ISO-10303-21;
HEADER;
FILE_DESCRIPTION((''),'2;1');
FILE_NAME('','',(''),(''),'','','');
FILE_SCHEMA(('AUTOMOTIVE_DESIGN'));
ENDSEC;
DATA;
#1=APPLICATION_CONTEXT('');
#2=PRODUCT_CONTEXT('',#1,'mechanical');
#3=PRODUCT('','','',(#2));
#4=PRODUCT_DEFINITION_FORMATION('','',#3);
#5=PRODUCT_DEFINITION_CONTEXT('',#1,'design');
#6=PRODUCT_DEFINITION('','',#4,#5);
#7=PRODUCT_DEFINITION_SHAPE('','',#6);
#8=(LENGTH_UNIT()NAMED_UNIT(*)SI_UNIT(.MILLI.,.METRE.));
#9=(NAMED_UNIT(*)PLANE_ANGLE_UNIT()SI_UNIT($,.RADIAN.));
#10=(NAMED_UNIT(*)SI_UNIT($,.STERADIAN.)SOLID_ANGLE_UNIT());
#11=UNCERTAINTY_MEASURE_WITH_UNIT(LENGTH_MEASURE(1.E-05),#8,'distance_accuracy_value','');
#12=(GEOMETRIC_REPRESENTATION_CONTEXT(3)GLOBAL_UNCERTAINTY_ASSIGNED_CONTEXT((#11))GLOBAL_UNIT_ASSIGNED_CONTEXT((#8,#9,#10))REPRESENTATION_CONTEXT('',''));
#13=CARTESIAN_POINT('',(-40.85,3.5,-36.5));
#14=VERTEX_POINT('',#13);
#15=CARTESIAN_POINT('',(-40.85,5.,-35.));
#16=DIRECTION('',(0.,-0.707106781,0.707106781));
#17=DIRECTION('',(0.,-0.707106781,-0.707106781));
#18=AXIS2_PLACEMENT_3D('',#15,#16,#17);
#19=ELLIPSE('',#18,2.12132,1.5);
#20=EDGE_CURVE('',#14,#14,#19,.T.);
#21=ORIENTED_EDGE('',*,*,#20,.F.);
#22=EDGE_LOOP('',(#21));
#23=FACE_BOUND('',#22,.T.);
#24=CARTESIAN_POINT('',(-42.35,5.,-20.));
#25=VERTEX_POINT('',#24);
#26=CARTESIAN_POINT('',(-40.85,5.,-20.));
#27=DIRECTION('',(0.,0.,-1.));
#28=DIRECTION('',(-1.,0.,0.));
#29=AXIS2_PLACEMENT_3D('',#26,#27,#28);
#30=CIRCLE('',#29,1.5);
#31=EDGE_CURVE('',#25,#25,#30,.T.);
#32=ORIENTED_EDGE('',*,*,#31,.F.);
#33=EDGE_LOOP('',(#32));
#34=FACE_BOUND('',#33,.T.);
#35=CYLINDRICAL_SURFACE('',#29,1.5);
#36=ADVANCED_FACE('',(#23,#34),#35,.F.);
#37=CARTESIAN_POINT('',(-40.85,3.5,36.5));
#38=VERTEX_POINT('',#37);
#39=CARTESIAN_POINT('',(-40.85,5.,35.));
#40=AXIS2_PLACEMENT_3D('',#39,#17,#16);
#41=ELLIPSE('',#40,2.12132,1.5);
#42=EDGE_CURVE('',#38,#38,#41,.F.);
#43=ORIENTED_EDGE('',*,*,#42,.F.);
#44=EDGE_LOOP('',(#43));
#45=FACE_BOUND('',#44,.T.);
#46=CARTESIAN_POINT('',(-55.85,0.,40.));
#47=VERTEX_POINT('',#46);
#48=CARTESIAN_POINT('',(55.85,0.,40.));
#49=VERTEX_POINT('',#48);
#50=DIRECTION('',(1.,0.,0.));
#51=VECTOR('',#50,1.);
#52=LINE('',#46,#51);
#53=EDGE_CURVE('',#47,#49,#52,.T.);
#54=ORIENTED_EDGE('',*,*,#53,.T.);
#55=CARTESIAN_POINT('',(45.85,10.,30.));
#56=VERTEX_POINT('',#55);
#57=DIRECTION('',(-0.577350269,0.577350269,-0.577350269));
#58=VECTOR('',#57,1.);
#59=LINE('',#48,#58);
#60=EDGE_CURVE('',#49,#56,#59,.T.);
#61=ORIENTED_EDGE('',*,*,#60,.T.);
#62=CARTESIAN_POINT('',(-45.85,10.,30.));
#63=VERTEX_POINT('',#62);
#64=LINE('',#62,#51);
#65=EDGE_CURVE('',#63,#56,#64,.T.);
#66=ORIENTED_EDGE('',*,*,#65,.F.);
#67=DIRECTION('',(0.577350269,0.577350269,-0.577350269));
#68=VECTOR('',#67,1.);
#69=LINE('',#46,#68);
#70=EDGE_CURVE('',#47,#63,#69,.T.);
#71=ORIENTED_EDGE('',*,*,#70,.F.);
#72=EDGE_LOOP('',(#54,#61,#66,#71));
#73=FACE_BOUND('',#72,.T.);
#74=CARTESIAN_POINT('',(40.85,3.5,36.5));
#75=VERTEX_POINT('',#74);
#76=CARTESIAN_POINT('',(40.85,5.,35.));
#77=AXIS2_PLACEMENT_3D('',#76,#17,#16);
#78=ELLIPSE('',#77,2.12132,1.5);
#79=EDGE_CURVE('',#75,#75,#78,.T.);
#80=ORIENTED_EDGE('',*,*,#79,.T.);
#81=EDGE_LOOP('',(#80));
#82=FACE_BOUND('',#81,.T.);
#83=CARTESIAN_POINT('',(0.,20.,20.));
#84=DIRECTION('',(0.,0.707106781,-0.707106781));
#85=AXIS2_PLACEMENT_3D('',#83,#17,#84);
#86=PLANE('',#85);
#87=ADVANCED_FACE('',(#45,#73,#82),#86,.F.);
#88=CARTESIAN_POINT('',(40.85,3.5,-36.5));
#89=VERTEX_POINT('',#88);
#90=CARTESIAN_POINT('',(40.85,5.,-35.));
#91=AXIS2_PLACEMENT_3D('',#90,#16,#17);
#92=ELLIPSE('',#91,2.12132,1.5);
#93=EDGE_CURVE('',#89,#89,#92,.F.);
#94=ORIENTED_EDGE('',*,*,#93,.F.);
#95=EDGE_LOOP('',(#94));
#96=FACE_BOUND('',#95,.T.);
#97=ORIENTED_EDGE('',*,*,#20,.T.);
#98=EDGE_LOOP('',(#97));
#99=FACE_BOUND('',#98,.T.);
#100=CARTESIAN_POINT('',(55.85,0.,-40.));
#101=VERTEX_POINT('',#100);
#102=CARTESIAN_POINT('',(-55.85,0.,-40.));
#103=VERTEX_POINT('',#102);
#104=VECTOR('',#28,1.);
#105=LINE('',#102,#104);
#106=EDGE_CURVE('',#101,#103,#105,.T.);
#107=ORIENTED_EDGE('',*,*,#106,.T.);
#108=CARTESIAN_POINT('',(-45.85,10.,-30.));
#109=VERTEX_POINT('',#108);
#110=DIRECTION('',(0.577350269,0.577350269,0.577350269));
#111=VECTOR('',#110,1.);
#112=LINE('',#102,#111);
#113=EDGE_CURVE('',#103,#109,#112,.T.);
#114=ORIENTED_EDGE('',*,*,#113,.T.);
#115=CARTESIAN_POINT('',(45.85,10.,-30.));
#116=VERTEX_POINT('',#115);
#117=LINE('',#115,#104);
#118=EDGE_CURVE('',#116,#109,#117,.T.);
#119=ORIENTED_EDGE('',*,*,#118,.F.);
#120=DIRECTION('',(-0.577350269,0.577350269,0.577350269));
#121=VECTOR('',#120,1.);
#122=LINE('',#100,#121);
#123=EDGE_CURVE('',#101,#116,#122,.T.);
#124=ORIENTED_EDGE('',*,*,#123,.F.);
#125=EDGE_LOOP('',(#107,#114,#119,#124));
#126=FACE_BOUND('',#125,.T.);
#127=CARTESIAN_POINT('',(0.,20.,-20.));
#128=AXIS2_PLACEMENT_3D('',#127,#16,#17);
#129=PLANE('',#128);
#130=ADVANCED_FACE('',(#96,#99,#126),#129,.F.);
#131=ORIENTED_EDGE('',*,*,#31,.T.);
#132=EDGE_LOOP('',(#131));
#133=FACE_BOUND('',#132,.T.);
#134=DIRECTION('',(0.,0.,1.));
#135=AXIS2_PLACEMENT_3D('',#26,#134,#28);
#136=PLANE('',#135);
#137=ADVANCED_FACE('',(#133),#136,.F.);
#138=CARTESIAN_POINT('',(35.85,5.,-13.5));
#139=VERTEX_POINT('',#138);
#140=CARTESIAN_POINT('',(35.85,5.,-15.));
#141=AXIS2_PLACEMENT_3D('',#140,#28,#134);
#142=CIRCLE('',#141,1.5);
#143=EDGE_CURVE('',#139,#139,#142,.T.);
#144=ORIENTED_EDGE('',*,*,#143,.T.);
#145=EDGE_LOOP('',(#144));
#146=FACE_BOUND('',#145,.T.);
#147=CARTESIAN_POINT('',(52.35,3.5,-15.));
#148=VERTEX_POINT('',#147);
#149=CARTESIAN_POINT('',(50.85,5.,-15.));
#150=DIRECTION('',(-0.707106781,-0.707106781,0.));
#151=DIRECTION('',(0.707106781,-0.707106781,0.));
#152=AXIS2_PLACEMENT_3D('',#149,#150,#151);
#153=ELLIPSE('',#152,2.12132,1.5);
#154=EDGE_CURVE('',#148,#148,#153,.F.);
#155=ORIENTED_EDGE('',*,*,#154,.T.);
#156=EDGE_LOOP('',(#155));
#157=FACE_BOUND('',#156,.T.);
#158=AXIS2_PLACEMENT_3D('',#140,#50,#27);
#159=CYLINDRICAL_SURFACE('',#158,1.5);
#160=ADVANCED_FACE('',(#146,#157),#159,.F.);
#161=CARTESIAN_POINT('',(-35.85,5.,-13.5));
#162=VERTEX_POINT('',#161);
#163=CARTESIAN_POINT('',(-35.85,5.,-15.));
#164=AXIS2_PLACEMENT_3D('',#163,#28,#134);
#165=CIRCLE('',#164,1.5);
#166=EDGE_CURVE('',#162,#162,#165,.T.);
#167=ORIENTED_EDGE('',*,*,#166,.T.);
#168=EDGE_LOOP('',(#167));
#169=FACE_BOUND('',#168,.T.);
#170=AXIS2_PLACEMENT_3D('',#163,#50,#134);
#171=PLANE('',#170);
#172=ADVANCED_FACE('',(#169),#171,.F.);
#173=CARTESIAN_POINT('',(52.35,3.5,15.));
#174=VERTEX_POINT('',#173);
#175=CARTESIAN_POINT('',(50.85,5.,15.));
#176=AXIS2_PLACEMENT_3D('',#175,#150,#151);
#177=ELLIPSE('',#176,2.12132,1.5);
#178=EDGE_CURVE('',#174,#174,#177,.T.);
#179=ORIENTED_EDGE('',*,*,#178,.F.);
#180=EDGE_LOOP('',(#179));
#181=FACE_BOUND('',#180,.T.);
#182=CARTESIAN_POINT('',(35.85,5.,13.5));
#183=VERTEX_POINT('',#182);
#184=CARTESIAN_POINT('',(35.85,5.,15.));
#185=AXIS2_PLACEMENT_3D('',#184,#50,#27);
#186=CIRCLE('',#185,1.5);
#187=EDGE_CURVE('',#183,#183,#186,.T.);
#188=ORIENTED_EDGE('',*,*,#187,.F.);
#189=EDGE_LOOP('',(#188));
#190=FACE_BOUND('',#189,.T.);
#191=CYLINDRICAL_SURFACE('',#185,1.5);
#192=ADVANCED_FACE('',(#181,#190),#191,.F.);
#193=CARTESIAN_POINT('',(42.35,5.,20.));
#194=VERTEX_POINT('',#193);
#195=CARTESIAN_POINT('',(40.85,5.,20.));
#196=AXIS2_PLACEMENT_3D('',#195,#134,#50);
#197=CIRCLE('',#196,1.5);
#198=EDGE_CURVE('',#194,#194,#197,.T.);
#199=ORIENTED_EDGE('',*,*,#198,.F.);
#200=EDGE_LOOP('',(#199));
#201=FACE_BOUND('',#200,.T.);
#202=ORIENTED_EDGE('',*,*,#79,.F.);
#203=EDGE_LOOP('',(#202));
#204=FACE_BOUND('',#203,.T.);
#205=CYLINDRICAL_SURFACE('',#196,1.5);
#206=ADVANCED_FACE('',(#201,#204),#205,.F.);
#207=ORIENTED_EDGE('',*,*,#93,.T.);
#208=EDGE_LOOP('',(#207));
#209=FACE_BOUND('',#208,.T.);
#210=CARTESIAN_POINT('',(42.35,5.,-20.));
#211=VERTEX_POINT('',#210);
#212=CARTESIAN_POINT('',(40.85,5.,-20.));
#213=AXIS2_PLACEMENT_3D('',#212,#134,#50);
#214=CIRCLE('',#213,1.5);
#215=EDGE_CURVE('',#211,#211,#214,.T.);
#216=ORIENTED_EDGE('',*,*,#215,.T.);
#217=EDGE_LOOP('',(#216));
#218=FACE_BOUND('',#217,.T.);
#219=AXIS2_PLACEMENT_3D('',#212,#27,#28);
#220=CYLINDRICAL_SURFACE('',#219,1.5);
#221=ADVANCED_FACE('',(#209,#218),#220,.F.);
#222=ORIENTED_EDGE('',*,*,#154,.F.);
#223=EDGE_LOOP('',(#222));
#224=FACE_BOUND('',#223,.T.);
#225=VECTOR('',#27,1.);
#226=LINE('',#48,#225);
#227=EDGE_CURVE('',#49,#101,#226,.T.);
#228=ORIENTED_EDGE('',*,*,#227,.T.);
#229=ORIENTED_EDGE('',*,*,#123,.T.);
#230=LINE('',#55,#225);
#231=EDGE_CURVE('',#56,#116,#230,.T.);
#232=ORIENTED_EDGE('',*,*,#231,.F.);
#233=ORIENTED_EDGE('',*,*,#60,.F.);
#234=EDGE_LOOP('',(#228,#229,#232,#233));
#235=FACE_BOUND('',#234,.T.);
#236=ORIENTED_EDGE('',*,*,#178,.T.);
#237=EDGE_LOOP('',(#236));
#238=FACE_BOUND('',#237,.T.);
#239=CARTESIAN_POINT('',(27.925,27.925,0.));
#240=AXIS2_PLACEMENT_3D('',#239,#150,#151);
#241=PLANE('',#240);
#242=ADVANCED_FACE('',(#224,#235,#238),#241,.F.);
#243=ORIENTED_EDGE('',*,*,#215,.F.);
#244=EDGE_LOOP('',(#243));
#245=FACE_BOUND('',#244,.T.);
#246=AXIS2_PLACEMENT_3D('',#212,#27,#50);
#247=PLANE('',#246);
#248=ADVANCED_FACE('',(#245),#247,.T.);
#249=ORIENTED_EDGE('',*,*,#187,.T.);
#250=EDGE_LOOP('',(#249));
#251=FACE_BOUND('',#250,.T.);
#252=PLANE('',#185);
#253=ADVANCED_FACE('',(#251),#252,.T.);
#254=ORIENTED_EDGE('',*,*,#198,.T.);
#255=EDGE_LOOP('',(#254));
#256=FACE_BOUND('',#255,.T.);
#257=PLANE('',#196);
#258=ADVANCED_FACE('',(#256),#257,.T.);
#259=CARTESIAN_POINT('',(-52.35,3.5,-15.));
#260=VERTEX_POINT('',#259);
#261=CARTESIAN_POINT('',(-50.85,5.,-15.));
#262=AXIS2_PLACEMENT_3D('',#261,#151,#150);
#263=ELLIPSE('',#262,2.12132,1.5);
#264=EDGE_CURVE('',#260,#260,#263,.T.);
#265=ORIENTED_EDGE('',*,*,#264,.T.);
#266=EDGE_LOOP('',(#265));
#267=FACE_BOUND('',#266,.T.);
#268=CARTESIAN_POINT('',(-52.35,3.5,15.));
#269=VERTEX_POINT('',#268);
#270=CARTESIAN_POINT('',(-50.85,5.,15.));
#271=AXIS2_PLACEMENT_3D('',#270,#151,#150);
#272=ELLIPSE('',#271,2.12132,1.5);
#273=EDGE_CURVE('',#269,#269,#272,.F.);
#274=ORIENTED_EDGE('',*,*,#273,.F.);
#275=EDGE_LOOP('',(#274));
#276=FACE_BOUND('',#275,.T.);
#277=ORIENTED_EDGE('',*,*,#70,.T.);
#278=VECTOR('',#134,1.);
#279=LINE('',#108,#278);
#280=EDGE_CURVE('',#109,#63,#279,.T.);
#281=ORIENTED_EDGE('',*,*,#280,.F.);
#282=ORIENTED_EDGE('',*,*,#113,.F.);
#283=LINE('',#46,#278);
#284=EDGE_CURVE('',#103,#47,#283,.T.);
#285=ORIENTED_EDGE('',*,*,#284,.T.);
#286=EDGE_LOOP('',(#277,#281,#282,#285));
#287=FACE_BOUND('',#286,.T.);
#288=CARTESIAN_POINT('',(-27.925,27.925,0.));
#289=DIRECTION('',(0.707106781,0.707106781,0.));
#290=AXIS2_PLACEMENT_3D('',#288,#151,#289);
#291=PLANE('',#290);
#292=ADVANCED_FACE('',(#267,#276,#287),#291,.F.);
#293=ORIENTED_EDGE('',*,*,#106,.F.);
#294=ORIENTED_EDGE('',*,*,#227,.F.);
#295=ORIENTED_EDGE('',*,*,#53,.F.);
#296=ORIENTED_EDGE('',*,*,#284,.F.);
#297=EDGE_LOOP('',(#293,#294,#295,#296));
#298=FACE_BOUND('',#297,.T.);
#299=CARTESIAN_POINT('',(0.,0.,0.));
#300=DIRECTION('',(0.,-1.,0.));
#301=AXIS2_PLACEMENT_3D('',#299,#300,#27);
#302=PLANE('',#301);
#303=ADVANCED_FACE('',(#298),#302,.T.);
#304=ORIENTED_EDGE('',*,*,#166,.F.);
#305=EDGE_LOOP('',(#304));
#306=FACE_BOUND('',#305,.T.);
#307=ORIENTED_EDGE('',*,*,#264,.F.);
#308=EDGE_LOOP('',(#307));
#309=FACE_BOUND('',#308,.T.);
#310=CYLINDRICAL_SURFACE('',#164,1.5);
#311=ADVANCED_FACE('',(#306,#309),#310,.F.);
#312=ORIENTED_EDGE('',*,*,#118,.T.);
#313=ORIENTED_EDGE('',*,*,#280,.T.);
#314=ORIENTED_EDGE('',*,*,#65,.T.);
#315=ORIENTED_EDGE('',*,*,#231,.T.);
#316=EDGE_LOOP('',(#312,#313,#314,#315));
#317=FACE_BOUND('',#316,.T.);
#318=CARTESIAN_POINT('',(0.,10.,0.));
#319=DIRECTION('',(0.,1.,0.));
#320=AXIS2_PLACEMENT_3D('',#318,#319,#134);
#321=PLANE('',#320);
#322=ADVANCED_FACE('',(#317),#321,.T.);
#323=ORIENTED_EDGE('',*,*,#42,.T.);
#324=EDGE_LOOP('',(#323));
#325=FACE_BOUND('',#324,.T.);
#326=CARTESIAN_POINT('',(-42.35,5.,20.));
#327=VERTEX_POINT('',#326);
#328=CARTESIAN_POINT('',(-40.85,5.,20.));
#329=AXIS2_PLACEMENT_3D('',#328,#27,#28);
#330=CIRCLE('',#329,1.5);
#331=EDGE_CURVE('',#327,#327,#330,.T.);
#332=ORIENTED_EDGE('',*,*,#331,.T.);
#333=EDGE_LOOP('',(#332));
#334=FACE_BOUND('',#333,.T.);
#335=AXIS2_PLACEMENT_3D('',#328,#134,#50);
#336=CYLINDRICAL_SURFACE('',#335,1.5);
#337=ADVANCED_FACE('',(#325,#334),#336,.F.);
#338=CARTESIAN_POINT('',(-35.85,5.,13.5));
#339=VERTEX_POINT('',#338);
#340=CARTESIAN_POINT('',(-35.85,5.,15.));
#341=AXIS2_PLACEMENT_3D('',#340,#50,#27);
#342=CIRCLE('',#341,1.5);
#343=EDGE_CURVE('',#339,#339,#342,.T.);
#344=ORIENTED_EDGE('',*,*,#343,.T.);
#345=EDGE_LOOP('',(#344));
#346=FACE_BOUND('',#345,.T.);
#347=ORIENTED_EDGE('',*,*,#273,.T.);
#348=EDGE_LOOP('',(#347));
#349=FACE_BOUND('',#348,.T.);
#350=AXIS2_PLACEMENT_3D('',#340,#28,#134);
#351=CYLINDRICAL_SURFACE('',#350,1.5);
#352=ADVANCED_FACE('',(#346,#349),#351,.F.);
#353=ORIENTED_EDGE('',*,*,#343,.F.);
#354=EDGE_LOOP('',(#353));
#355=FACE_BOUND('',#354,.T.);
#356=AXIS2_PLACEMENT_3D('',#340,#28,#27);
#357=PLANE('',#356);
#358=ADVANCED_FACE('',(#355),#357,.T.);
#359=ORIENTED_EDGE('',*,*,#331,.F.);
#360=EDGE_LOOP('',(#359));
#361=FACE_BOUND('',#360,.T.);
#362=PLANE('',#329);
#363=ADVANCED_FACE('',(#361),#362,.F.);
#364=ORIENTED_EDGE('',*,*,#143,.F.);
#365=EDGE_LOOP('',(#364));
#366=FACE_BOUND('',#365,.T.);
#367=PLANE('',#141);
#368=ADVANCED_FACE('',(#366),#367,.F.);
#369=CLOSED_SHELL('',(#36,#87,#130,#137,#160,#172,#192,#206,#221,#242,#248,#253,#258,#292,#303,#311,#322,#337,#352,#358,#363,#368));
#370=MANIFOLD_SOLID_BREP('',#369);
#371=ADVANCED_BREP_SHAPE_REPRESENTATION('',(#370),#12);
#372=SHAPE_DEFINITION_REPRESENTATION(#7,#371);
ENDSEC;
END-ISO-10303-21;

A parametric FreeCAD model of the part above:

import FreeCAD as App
import Part
import Sketcher
from FreeCAD import Vector
Q = App.Units.Quantity

doc = App.newDocument("Part")
params = doc.addObject("Spreadsheet::Sheet", "Params")
for row, (alias, value) in enumerate([
    ("sketch1_height", "80 mm"),
    ("sketch1_width", "111.7 mm"),
    ("sketch2_height", "60 mm"),
    ("sketch2_width", "91.7 mm"),
    ("sketch3_diameter", "3 mm"),
    ("pocket1_length", "20 mm"),
    ("sketch4_diameter", "3 mm"),
    ("pocket2_length", "20 mm"),
], start=1):
    params.set(f"A{row}", alias)
    params.set(f"B{row}", "=" + value)
    params.setAlias(f"B{row}", alias)

body = doc.addObject("PartDesign::Body", "Body")

# Sketch on XZ plane
sketch1 = body.newObject("Sketcher::SketchObject", "Sketch")
sketch1.AttachmentSupport = (doc.getObject("XZ_Plane"), [""])
sketch1.MapMode = "FlatFace"
sketch1.addGeometry(Part.LineSegment(Vector(-56, 40, 0), Vector(56, 40, 0)), False)
sketch1.addGeometry(Part.LineSegment(Vector(56, 40, 0), Vector(56, -40, 0)), False)
sketch1.addGeometry(Part.LineSegment(Vector(56, -40, 0), Vector(-56, -40, 0)), False)
sketch1.addGeometry(Part.LineSegment(Vector(-56, -40, 0), Vector(-56, 40, 0)), False)
sketch1.addConstraint(Sketcher.Constraint("Coincident", 0, 2, 1, 1))
sketch1.addConstraint(Sketcher.Constraint("Coincident", 1, 2, 2, 1))
sketch1.addConstraint(Sketcher.Constraint("Coincident", 2, 2, 3, 1))
sketch1.addConstraint(Sketcher.Constraint("Coincident", 3, 2, 0, 1))
sketch1.addConstraint(Sketcher.Constraint("Horizontal", 0))
sketch1.addConstraint(Sketcher.Constraint("Vertical", 1))
sketch1.addConstraint(Sketcher.Constraint("Horizontal", 2))
sketch1.addConstraint(Sketcher.Constraint("Vertical", 3))
sketch1.addConstraint(Sketcher.Constraint("Symmetric", 0, 2, 2, 2, -1, 1))
sketch1.addConstraint(Sketcher.Constraint("DistanceY", 1, 2, 1, 1, Q("80 mm")))
sketch1.addConstraint(Sketcher.Constraint("DistanceX", 0, 1, 0, 2, Q("111.7 mm")))
sketch1.setExpression("Constraints[9]", "Params.sketch1_height")
sketch1.setExpression("Constraints[10]", "Params.sketch1_width")

# Sketch on XZ plane
sketch2 = body.newObject("Sketcher::SketchObject", "Sketch001")
sketch2.AttachmentSupport = (doc.getObject("XZ_Plane"), [""])
sketch2.MapMode = "FlatFace"
sketch2.AttachmentOffset = App.Placement(Vector(0, 0, -10), App.Rotation())
sketch2.addGeometry(Part.LineSegment(Vector(46, -30, 0), Vector(-46, -30, 0)), False)
sketch2.addGeometry(Part.LineSegment(Vector(-46, -30, 0), Vector(-46, 30, 0)), False)
sketch2.addGeometry(Part.LineSegment(Vector(-46, 30, 0), Vector(46, 30, 0)), False)
sketch2.addGeometry(Part.LineSegment(Vector(46, 30, 0), Vector(46, -30, 0)), False)
sketch2.addConstraint(Sketcher.Constraint("Coincident", 0, 2, 1, 1))
sketch2.addConstraint(Sketcher.Constraint("Coincident", 1, 2, 2, 1))
sketch2.addConstraint(Sketcher.Constraint("Coincident", 2, 2, 3, 1))
sketch2.addConstraint(Sketcher.Constraint("Coincident", 3, 2, 0, 1))
sketch2.addConstraint(Sketcher.Constraint("Horizontal", 0))
sketch2.addConstraint(Sketcher.Constraint("Vertical", 1))
sketch2.addConstraint(Sketcher.Constraint("Horizontal", 2))
sketch2.addConstraint(Sketcher.Constraint("Vertical", 3))
sketch2.addConstraint(Sketcher.Constraint("Symmetric", 0, 2, 2, 2, -1, 1))
sketch2.addConstraint(Sketcher.Constraint("DistanceY", 1, 1, 1, 2, Q("60 mm")))
sketch2.addConstraint(Sketcher.Constraint("DistanceX", 0, 2, 0, 1, Q("91.7 mm")))
sketch2.setExpression("Constraints[9]", "Params.sketch2_height")
sketch2.setExpression("Constraints[10]", "Params.sketch2_width")

additiveloft = body.newObject("PartDesign::AdditiveLoft", "AdditiveLoft")
additiveloft.Profile = sketch1
additiveloft.Sections = [sketch2]

# Sketch on XY plane
sketch3 = body.newObject("Sketcher::SketchObject", "Sketch002")
sketch3.AttachmentSupport = (doc.getObject("XY_Plane"), [""])
sketch3.MapMode = "FlatFace"
sketch3.AttachmentOffset = App.Placement(Vector(0, 0, 40), App.Rotation())
sketch3.addGeometry(Part.Circle(Vector(40.9, 5, 0), Vector(0, 0, 1), 1.5), False)
sketch3.addGeometry(Part.Circle(Vector(-40.9, 5, 0), Vector(0, 0, 1), 1.5), False)
sketch3.addConstraint(Sketcher.Constraint("Equal", 0, 1))
sketch3.addConstraint(Sketcher.Constraint("Symmetric", 0, 3, 1, 3, -2))
sketch3.addConstraint(Sketcher.Constraint("Diameter", 0, Q("3 mm")))
sketch3.addConstraint(Sketcher.Constraint("DistanceY", -1, 1, 0, 3, Q("5 mm")))
sketch3.addConstraint(Sketcher.Constraint("DistanceX", 1, 3, 0, 3, Q("81.7 mm")))
sketch3.setExpression("Constraints[2]", "Params.sketch3_diameter")
pocket1 = body.newObject("PartDesign::Pocket", "Pocket")
pocket1.Profile = sketch3
pocket1.setExpression("Length", "Params.pocket1_length")
doc.recompute()

mirrored = body.newObject("PartDesign::Mirrored", "Mirrored")
mirrored.Originals = [pocket1]
mirrored.MirrorPlane = (doc.getObject("XY_Plane"), [""])
body.Tip = mirrored

# Sketch on YZ plane
sketch4 = body.newObject("Sketcher::SketchObject", "Sketch003")
sketch4.AttachmentSupport = (doc.getObject("YZ_Plane"), [""])
sketch4.MapMode = "FlatFace"
sketch4.AttachmentOffset = App.Placement(Vector(0, 0, 55.85), App.Rotation())
sketch4.addGeometry(Part.Circle(Vector(5, 15, 0), Vector(0, 0, 1), 1.5), False)
sketch4.addGeometry(Part.Circle(Vector(5, -15, 0), Vector(0, 0, 1), 1.5), False)
sketch4.addConstraint(Sketcher.Constraint("Equal", 0, 1))
sketch4.addConstraint(Sketcher.Constraint("Symmetric", 0, 3, 1, 3, -1))
sketch4.addConstraint(Sketcher.Constraint("Diameter", 0, Q("3 mm")))
sketch4.addConstraint(Sketcher.Constraint("DistanceX", -1, 1, 0, 3, Q("5 mm")))
sketch4.addConstraint(Sketcher.Constraint("DistanceY", -1, 1, 0, 3, Q("15 mm")))
sketch4.setExpression("Constraints[2]", "Params.sketch4_diameter")
pocket2 = body.newObject("PartDesign::Pocket", "Pocket001")
pocket2.Profile = sketch4
pocket2.setExpression("Length", "Params.pocket2_length")
doc.recompute()

mirrored2 = body.newObject("PartDesign::Mirrored", "Mirrored001")
mirrored2.Originals = [pocket2]
mirrored2.MirrorPlane = (doc.getObject("YZ_Plane"), [""])
body.Tip = mirrored2

doc.recompute()
